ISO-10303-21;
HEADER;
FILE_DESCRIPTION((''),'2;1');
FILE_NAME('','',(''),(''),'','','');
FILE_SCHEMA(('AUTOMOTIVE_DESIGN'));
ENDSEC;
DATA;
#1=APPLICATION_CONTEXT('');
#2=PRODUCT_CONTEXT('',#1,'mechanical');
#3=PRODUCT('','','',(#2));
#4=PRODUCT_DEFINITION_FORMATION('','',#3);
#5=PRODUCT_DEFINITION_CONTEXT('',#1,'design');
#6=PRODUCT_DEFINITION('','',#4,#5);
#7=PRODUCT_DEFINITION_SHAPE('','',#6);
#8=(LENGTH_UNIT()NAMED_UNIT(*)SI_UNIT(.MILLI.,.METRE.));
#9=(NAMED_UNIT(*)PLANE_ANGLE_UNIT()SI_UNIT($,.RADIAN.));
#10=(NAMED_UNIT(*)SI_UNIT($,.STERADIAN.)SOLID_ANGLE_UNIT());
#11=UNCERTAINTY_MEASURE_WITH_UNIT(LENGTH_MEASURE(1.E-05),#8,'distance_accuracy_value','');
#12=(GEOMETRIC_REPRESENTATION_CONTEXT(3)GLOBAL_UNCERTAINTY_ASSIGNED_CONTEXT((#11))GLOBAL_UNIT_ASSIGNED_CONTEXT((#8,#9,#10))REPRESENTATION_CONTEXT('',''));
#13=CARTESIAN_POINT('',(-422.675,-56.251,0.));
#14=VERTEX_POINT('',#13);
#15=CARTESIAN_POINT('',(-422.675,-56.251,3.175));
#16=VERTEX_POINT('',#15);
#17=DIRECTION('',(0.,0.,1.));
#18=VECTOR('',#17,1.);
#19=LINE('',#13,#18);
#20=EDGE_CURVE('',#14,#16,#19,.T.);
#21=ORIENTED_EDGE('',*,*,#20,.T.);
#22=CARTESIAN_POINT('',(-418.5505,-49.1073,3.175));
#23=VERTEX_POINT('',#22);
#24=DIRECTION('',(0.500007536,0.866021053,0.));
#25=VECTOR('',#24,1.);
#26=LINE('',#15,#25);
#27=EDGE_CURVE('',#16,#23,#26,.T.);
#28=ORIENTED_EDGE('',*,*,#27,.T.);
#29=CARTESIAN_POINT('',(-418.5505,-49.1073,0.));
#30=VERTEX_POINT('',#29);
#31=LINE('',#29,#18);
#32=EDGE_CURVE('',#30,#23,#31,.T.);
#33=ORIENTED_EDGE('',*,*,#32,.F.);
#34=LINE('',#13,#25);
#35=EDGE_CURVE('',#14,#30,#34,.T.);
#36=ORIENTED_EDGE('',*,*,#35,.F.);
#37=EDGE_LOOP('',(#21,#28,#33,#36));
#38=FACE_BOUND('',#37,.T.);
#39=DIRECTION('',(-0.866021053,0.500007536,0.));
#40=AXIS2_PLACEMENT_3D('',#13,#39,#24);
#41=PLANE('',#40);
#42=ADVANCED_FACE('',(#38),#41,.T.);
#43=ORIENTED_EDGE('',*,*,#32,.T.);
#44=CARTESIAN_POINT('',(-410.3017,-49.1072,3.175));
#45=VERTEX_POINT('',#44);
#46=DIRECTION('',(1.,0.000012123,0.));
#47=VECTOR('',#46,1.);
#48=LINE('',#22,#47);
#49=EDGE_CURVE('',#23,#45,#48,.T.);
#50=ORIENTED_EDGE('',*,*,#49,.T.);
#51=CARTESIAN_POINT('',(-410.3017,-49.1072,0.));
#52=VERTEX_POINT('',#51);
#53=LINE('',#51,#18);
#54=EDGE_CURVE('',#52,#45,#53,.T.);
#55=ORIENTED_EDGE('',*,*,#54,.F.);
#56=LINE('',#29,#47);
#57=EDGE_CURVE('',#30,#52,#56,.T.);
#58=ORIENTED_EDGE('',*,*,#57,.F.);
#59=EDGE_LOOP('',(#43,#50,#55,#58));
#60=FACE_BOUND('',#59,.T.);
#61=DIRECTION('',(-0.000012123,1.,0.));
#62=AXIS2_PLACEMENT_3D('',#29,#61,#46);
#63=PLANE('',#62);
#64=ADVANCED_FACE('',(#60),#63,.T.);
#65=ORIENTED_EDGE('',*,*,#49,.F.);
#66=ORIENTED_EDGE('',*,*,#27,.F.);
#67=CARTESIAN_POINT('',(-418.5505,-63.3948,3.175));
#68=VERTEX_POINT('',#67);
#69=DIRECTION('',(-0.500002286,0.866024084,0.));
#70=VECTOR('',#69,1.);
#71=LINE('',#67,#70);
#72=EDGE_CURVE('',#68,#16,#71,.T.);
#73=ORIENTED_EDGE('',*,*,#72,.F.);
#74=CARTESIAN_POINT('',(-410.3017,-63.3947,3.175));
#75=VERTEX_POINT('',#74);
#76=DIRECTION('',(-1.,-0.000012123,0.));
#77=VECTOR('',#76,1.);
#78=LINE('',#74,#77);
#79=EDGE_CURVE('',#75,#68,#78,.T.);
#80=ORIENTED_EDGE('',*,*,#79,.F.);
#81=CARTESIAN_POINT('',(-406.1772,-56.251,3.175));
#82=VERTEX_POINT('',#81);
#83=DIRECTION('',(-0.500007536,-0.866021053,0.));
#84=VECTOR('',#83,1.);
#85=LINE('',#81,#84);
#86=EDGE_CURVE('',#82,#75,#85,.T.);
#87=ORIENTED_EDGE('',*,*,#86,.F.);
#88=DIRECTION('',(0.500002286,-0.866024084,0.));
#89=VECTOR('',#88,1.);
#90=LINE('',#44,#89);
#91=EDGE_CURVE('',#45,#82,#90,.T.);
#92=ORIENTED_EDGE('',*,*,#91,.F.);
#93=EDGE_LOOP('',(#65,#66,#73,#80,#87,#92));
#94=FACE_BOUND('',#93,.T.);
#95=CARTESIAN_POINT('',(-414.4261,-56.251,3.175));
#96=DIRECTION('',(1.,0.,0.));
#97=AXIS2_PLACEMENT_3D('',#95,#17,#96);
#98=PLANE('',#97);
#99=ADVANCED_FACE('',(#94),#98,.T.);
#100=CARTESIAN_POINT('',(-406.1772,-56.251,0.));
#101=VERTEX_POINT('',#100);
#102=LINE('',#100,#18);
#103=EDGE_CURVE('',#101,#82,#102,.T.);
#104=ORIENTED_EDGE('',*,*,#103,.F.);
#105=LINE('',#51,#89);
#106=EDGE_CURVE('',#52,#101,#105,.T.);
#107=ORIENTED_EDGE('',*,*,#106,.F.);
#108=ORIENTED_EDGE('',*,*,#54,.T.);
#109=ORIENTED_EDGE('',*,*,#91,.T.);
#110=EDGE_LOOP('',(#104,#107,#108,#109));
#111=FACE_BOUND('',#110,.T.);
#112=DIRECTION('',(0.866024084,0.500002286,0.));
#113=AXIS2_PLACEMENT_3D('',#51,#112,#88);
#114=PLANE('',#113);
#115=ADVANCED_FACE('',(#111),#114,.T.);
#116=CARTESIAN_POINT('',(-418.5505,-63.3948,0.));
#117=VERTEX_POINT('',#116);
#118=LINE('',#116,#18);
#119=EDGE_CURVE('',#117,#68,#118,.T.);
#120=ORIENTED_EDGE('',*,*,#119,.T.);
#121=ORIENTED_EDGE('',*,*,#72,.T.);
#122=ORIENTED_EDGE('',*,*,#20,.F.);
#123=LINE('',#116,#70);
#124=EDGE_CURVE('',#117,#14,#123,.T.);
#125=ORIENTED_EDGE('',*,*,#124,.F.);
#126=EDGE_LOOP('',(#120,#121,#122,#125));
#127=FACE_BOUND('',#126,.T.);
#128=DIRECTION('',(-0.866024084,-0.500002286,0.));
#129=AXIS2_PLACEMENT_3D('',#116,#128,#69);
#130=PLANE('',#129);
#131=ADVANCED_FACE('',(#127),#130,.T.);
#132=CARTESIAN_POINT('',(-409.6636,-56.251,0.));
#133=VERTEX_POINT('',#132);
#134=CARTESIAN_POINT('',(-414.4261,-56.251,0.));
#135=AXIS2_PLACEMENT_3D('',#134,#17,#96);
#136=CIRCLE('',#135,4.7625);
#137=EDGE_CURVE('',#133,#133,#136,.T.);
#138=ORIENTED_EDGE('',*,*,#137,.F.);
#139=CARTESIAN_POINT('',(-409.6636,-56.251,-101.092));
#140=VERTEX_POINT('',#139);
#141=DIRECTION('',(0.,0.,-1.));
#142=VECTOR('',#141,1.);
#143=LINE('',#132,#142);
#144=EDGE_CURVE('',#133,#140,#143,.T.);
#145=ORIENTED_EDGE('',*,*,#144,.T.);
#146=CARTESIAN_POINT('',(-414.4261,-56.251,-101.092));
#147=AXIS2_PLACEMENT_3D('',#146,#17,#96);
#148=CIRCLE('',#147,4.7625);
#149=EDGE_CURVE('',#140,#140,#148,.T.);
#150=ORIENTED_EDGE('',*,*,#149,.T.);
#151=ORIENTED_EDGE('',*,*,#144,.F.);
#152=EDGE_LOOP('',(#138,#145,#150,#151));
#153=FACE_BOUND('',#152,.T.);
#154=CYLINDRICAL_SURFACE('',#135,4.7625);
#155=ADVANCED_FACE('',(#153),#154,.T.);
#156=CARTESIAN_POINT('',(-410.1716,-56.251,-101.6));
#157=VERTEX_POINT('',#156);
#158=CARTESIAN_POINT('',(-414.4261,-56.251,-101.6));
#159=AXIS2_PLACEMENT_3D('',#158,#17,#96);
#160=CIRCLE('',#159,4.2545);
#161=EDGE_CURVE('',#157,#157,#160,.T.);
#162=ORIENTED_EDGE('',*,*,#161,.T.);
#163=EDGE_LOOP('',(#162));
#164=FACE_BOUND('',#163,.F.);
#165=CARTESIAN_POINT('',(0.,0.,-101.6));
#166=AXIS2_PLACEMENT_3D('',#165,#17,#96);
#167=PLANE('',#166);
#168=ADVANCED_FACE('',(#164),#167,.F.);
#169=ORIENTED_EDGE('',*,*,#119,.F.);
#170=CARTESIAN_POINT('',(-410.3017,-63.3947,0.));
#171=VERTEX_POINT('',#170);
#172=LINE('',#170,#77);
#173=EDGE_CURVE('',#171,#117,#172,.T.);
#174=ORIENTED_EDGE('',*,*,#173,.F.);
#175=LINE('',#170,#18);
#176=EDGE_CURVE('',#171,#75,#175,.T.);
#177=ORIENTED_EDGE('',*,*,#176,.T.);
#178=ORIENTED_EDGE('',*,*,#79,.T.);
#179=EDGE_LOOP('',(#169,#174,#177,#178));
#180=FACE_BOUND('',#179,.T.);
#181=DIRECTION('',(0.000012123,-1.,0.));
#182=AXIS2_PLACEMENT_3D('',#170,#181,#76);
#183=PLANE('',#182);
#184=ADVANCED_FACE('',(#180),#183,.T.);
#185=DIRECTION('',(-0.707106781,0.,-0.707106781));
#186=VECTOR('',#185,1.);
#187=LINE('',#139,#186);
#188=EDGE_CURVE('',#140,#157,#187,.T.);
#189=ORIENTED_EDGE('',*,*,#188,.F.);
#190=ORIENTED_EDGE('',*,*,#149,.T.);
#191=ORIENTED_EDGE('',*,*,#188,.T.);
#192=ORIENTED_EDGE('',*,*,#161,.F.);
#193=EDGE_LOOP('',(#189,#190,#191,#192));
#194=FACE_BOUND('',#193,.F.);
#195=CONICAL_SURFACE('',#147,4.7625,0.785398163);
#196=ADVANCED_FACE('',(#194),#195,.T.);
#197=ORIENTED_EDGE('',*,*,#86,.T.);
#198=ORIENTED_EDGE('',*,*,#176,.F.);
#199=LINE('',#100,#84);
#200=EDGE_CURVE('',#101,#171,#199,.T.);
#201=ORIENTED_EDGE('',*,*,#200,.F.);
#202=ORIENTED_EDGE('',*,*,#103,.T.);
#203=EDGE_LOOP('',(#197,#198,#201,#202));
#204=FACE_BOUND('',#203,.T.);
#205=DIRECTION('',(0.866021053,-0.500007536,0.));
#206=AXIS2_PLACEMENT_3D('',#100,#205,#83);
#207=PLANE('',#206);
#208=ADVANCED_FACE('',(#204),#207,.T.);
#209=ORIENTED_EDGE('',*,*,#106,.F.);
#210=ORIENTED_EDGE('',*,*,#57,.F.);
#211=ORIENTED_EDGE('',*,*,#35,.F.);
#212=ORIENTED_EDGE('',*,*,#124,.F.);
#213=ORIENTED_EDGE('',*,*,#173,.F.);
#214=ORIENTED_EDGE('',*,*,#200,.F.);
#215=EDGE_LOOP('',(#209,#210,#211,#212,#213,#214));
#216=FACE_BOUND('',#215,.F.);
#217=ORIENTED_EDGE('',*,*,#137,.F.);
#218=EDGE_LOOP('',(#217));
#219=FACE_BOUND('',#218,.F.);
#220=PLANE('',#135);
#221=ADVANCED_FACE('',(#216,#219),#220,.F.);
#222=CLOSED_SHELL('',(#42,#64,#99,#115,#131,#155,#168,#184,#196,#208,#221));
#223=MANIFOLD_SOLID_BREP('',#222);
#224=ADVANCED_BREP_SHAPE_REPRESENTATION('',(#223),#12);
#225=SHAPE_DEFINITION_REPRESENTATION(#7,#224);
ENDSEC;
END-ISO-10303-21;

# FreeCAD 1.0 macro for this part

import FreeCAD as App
import Part
import Sketcher

V = App.Vector
Q = App.Units.Quantity


def edges_at(feature, points):
    """Names of the edges that pass closest to the given points."""
    edges = feature.Shape.Edges
    near = lambda p: min(range(len(edges)), key=lambda i: edges[i].distToShape(Part.Vertex(*p))[0])
    return sorted({f"Edge{near(p) + 1}" for p in points})


def add_polygon(sketch, points):
    """Adds a closed chain of lines whose ends are joined by coincident constraints."""
    first, n = sketch.GeometryCount, len(points)
    for a, b in zip(points, points[1:] + points[:1]):
        sketch.addGeometry(Part.LineSegment(App.Vector(*a, 0), App.Vector(*b, 0)), False)
    for i in range(n):
        sketch.addConstraint(Sketcher.Constraint("Coincident", first + i, 2, first + (i + 1) % n, 1))

doc = App.newDocument("Part")
body = doc.addObject("PartDesign::Body", "Body")

sketch1 = body.newObject("Sketcher::SketchObject", "Sketch")
sketch1.AttachmentSupport = (doc.getObject("XY_Plane"), [""])
sketch1.MapMode = "FlatFace"
sketch1.addGeometry(Part.Circle(V(-414.4, -56.3, 0), V(0, 0, 1), 4.8), False)
sketch1.addConstraint(Sketcher.Constraint("Diameter", 0, Q("0.375 in")))
sketch1.addConstraint(Sketcher.Constraint("DistanceX", 0, 3, -1, 1, Q("16.316 in")))
sketch1.addConstraint(Sketcher.Constraint("DistanceY", 0, 3, -1, 1, Q("2.2146 in")))
pad1 = body.newObject("PartDesign::Pad", "Pad")
pad1.Profile = sketch1
pad1.Length = Q("4 in")
pad1.Reversed = True

sketch2 = body.newObject("Sketcher::SketchObject", "Sketch001")
sketch2.AttachmentSupport = (doc.getObject("XY_Plane"), [""])
sketch2.MapMode = "FlatFace"
add_polygon(sketch2, [(-419, -49), (-423, -56), (-419, -63), (-410, -63), (-406, -56), (-410, -49)])
sketch2.addConstraint(Sketcher.Constraint("Horizontal", 2))
sketch2.addConstraint(Sketcher.Constraint("Horizontal", 5))
sketch2.addConstraint(Sketcher.Constraint("Parallel", 0, 3))
sketch2.addConstraint(Sketcher.Constraint("Parallel", 1, 4))
sketch2.addConstraint(Sketcher.Constraint("Horizontal", 0, 2, 3, 2))
sketch2.addConstraint(Sketcher.Constraint("Vertical", 2, 2, 4, 2))
sketch2.addConstraint(Sketcher.Constraint("Vertical", 1, 2, 5, 2))
sketch2.addConstraint(Sketcher.Constraint("Angle", 0, Q("-120.0005 deg")))
sketch2.addConstraint(Sketcher.Constraint("DistanceY", 2, 2, 4, 2, Q("0.5625 in")))
sketch2.addConstraint(Sketcher.Constraint("DistanceX", 2, 1, 2, 2, Q("8.2488 mm")))
sketch2.addConstraint(Sketcher.Constraint("DistanceY", 0, 2, -1, 1, Q("2.2146 in")))
sketch2.addConstraint(Sketcher.Constraint("DistanceX", 2, 2, -1, 1, Q("16.1536 in")))
pad2 = body.newObject("PartDesign::Pad", "Pad001")
pad2.Profile = sketch2
pad2.Length = Q("0.125 in")
doc.recompute()

chamfer = body.newObject("PartDesign::Chamfer", "Chamfer")
chamfer.Base = (pad2, edges_at(pad2, [(-419.189, -56.251, -101.6)]))
chamfer.Size = Q("0.02 in")

doc.recompute()
